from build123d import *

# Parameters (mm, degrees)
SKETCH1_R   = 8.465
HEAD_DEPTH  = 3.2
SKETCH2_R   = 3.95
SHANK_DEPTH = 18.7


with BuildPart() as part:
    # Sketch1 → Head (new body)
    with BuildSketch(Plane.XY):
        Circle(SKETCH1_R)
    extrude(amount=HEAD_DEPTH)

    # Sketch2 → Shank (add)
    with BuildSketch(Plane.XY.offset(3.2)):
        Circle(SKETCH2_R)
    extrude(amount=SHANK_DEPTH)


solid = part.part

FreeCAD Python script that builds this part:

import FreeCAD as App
import Part
import Sketcher

doc = App.newDocument("Part")
body = doc.addObject("PartDesign::Body", "Body")

# Sketch on XY plane
sketch1 = body.newObject("Sketcher::SketchObject", "Sketch")
sketch1.AttachmentSupport = (doc.getObject("XY_Plane"), [""])
sketch1.MapMode = "FlatFace"
sketch1.addGeometry(Part.Circle(App.Vector(0, 0, 0), App.Vector(0, 0, 1), 8.465), False)
sketch1.addConstraint(Sketcher.Constraint("Coincident", 0, 3, -1, 1))
sketch1.addConstraint(Sketcher.Constraint("Diameter", 0, 16.93))
pad1 = body.newObject("PartDesign::Pad", "Pad")
pad1.Profile = sketch1
pad1.Length = 3.2

# Sketch on XY plane
sketch2 = body.newObject("Sketcher::SketchObject", "Sketch001")
sketch2.AttachmentSupport = (doc.getObject("XY_Plane"), [""])
sketch2.MapMode = "FlatFace"
sketch2.AttachmentOffset = App.Placement(App.Vector(0, 0, 3.2), App.Rotation())
sketch2.addGeometry(Part.Circle(App.Vector(0, 0, 0), App.Vector(0, 0, 1), 3.95), False)
sketch2.addConstraint(Sketcher.Constraint("Coincident", 0, 3, -1, 1))
sketch2.addConstraint(Sketcher.Constraint("Diameter", 0, 7.9))
pad2 = body.newObject("PartDesign::Pad", "Pad001")
pad2.Profile = sketch2
pad2.Length = 18.7

doc.recompute()
